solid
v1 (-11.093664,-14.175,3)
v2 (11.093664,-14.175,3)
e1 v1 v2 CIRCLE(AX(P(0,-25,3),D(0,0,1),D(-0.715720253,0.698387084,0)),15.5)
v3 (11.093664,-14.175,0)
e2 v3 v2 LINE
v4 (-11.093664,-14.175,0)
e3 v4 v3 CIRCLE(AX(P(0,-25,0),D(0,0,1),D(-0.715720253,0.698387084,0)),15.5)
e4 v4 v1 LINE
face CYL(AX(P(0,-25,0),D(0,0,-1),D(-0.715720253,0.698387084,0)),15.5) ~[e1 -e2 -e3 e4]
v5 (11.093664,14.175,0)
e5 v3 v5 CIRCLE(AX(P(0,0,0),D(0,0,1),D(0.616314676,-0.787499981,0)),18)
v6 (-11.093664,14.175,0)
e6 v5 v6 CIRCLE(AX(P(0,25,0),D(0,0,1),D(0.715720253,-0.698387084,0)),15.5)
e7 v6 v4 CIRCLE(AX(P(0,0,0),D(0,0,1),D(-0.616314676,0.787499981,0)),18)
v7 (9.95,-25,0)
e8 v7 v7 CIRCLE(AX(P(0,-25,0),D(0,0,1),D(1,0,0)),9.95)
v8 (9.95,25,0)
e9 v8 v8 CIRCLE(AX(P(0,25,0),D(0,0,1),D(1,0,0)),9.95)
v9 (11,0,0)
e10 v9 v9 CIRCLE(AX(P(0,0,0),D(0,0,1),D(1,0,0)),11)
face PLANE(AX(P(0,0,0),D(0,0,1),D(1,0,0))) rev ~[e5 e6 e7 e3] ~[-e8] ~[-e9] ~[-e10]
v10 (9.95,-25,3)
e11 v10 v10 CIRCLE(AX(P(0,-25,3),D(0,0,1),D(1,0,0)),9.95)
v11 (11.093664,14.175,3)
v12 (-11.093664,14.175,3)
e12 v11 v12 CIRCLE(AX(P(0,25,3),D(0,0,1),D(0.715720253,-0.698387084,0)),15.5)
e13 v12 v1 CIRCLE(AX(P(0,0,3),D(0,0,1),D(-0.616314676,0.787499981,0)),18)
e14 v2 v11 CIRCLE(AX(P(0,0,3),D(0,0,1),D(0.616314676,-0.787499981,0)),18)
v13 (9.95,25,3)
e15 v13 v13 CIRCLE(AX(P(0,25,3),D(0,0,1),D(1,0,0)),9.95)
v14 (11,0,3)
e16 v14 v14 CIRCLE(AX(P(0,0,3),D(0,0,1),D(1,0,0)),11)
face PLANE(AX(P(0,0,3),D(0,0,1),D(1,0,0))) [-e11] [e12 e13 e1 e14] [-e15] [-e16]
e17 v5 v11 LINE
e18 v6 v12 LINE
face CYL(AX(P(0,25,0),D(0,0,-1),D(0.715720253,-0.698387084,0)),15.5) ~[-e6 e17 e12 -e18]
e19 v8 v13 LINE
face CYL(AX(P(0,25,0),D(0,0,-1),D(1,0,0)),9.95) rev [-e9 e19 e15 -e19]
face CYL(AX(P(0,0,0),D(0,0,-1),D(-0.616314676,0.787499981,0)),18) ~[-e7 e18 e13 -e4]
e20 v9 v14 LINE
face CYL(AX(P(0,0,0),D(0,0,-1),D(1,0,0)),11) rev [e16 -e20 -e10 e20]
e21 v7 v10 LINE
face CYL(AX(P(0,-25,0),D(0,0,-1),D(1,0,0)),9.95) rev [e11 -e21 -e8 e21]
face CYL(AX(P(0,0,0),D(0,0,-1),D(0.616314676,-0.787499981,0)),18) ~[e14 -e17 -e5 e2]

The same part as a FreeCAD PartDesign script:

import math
import FreeCAD as App
import Part
import Sketcher

V = App.Vector
Q = App.Units.Quantity

doc = App.newDocument("Part")
body = doc.addObject("PartDesign::Body", "Body")

# Sketch on XY plane
sketch1 = doc.addObject("Sketcher::SketchObject", "Sketch")
body.addObject(sketch1)
sketch1.AttachmentSupport = (doc.XY_Plane, [""])
sketch1.MapMode = "FlatFace"
sketch1.addGeometry(Part.ArcOfCircle(Part.Circle(V(0, 0, 0), V(0, 0, 1), 18), math.radians(-52), math.radians(52)), False)
sketch1.addGeometry(Part.ArcOfCircle(Part.Circle(V(0, 25, 0), V(0, 0, 1), 16), math.radians(-44), math.radians(224)), False)
sketch1.addGeometry(Part.ArcOfCircle(Part.Circle(V(0, 0, 0), V(0, 0, 1), 18), math.radians(128), math.radians(232)), False)
sketch1.addGeometry(Part.ArcOfCircle(Part.Circle(V(0, -25, 0), V(0, 0, 1), 16), math.radians(136), math.radians(404)), False)
sketch1.addGeometry(Part.Circle(V(0, -25, 0), V(0, 0, 1), 10), False)
sketch1.addGeometry(Part.Circle(V(0, 0, 0), V(0, 0, 1), 11), False)
sketch1.addGeometry(Part.Circle(V(0, 25, 0), V(0, 0, 1), 10), False)
sketch1.addConstraint(Sketcher.Constraint("Coincident", 0, 2, 1, 1))
sketch1.addConstraint(Sketcher.Constraint("Coincident", 1, 2, 2, 1))
sketch1.addConstraint(Sketcher.Constraint("Coincident", 2, 2, 3, 1))
sketch1.addConstraint(Sketcher.Constraint("Coincident", 3, 2, 0, 1))
sketch1.addConstraint(Sketcher.Constraint("Coincident", 0, 3, -1, 1))
sketch1.addConstraint(Sketcher.Constraint("Coincident", 2, 3, -1, 1))
sketch1.addConstraint(Sketcher.Constraint("Coincident", 5, 3, -1, 1))
sketch1.addConstraint(Sketcher.Constraint("Coincident", 4, 3, 3, 3))
sketch1.addConstraint(Sketcher.Constraint("Coincident", 6, 3, 1, 3))
sketch1.addConstraint(Sketcher.Constraint("Equal", 0, 2))
sketch1.addConstraint(Sketcher.Constraint("Equal", 1, 3))
sketch1.addConstraint(Sketcher.Constraint("Equal", 4, 6))
sketch1.addConstraint(Sketcher.Constraint("Symmetric", 1, 3, 3, 3, -1, 1))
sketch1.addConstraint(Sketcher.Constraint("PointOnObject", 1, 3, -2))
sketch1.addConstraint(Sketcher.Constraint("Diameter", 5, Q("22 mm")))
sketch1.addConstraint(Sketcher.Constraint("Radius", 0, Q("18 mm")))
sketch1.addConstraint(Sketcher.Constraint("Diameter", 4, Q("19.9 mm")))
sketch1.addConstraint(Sketcher.Constraint("Radius", 1, Q("15.5 mm")))
sketch1.addConstraint(Sketcher.Constraint("DistanceY", -1, 1, 1, 3, Q("25 mm")))
pad1 = doc.addObject("PartDesign::Pad", "Pad")
body.addObject(pad1)
pad1.Profile = sketch1
pad1.Length = 3

doc.recompute()
